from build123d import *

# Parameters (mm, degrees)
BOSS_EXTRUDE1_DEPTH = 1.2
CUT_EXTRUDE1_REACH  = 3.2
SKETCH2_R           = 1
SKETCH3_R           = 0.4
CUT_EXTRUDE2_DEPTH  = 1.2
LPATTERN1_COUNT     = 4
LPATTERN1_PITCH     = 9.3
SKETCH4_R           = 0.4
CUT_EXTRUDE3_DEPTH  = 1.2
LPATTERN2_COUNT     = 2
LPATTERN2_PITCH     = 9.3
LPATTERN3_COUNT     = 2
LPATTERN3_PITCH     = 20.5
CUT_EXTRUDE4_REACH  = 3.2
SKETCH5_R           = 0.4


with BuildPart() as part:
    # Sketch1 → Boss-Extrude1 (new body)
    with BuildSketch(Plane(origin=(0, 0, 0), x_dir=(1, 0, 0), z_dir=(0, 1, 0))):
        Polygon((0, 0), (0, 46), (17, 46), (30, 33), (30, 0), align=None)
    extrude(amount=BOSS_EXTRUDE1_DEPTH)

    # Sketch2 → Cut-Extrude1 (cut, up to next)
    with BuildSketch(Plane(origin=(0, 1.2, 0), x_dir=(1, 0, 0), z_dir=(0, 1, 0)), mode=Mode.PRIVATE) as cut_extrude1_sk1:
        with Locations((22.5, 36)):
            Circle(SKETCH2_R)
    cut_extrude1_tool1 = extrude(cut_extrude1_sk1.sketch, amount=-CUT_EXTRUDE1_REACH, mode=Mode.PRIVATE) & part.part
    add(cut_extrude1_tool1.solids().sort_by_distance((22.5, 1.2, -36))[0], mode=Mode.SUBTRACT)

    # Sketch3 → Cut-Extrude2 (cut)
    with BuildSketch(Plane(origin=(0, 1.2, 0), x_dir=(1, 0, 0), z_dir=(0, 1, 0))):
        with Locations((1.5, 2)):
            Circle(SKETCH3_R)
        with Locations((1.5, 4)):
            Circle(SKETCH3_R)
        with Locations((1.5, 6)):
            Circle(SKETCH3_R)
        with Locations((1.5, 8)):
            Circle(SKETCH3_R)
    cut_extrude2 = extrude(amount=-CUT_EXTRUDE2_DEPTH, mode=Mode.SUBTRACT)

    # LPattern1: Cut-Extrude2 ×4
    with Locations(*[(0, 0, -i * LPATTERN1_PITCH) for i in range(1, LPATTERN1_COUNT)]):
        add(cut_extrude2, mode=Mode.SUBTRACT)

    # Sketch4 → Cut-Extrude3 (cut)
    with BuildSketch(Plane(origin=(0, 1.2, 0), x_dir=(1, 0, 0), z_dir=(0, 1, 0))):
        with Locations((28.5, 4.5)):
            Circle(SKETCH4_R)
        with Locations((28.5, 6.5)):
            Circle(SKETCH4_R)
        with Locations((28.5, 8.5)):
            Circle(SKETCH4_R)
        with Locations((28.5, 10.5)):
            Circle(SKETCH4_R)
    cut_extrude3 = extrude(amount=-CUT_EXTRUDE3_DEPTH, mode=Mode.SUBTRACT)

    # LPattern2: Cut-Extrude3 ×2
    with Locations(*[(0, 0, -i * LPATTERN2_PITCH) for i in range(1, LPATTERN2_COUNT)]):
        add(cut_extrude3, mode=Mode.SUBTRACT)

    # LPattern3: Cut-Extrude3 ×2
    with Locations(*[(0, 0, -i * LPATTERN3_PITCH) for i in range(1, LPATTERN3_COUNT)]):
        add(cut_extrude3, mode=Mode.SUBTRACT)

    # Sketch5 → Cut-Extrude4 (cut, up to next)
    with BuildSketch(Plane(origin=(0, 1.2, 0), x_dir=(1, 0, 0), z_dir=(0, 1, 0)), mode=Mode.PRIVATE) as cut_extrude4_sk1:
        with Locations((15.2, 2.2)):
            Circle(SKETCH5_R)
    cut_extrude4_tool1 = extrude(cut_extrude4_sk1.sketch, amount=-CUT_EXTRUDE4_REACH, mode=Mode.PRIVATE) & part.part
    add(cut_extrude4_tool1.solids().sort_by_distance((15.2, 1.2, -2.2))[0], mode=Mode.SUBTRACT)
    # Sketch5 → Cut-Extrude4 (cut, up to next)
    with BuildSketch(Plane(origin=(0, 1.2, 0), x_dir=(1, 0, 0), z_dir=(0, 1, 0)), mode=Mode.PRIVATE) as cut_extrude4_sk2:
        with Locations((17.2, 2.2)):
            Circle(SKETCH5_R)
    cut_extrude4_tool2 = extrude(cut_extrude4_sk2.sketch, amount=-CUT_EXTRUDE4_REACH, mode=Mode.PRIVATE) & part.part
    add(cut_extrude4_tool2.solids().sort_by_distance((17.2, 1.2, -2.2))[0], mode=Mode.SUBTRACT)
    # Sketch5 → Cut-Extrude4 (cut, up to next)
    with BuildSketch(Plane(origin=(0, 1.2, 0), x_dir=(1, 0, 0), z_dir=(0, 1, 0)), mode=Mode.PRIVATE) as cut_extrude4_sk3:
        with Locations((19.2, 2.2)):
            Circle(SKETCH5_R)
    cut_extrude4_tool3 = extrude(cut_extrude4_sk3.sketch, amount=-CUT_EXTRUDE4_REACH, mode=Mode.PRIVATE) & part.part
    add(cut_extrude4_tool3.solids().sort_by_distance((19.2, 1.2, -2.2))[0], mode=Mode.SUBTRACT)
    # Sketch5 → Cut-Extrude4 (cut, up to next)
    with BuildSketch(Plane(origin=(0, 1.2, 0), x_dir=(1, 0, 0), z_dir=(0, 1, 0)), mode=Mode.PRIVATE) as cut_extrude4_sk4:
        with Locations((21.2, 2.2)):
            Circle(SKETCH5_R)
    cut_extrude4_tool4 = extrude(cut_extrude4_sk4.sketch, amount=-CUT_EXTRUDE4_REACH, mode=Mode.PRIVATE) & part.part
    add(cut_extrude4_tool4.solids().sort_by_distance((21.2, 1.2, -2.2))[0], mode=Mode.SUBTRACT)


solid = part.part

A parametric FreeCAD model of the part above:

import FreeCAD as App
import Part
import Sketcher
Q = App.Units.Quantity


def add_polygon(sketch, points):
    """Adds a closed chain of lines whose ends are joined by coincident constraints."""
    first, n = sketch.GeometryCount, len(points)
    for a, b in zip(points, points[1:] + points[:1]):
        sketch.addGeometry(Part.LineSegment(App.Vector(*a, 0), App.Vector(*b, 0)), False)
    for i in range(n):
        sketch.addConstraint(Sketcher.Constraint("Coincident", first + i, 2, first + (i + 1) % n, 1))

doc = App.newDocument("Part")
body = doc.addObject("PartDesign::Body", "Body")

# Sketch on XZ plane
sketch1 = doc.addObject("Sketcher::SketchObject", "Sketch")
body.addObject(sketch1)
sketch1.AttachmentSupport = (doc.XZ_Plane, [""])
sketch1.MapMode = "FlatFace"
add_polygon(sketch1, [(0, -46), (0, 0), (30, 0), (30, -33), (17, -46)])  # lines 0-4
sketch1.addConstraint([
    Sketcher.Constraint("Vertical", 0),
    Sketcher.Constraint("Horizontal", 1),
    Sketcher.Constraint("Vertical", 2),
    Sketcher.Constraint("Horizontal", 4),
    Sketcher.Constraint("Coincident", 0, 2, -1, 1),
    Sketcher.Constraint("DistanceX", 1, 1, 1, 2, Q("30 mm")),
    Sketcher.Constraint("DistanceX", 4, 2, 4, 1, Q("17 mm")),
    Sketcher.Constraint("DistanceY", 0, 1, 0, 2, Q("46 mm")),
    Sketcher.Constraint("DistanceY", 2, 2, 2, 1, Q("33 mm")),
])
pad1 = doc.addObject("PartDesign::Pad", "Pad")
body.addObject(pad1)
pad1.Profile = sketch1
pad1.Length = 1.2
pad1.Reversed = True

# Sketch on XZ plane
sketch2 = doc.addObject("Sketcher::SketchObject", "Sketch001")
body.addObject(sketch2)
sketch2.AttachmentSupport = (doc.XZ_Plane, [""])
sketch2.MapMode = "FlatFace"
sketch2.AttachmentOffset = App.Placement(App.Vector(0, 0, -1.2), App.Rotation())
sketch2.addGeometry(Part.Circle(App.Vector(22.5, -36, 0), App.Vector(0, 0, 1), 1), False)
sketch2.addConstraint([
    Sketcher.Constraint("Diameter", 0, Q("2 mm")),
    Sketcher.Constraint("DistanceY", 0, 3, -1, 1, Q("36 mm")),
    Sketcher.Constraint("DistanceX", -1, 1, 0, 3, Q("22.5 mm")),
])
pocket1 = doc.addObject("PartDesign::Pocket", "Pocket")
body.addObject(pocket1)
pocket1.Profile = sketch2
pocket1.Type = "UpToFirst"
pocket1.Reversed = True

# Sketch on XZ plane
sketch3 = doc.addObject("Sketcher::SketchObject", "Sketch002")
body.addObject(sketch3)
sketch3.AttachmentSupport = (doc.XZ_Plane, [""])
sketch3.MapMode = "FlatFace"
sketch3.AttachmentOffset = App.Placement(App.Vector(0, 0, -1.2), App.Rotation())
sketch3.addGeometry([
    Part.Circle(App.Vector(1.5, -2, 0), App.Vector(0, 0, 1), 0.4),
    Part.Circle(App.Vector(1.5, -4, 0), App.Vector(0, 0, 1), 0.4),
    Part.Circle(App.Vector(1.5, -6, 0), App.Vector(0, 0, 1), 0.4),
    Part.Circle(App.Vector(1.5, -8, 0), App.Vector(0, 0, 1), 0.4),
], False)
sketch3.addConstraint([
    Sketcher.Constraint("Equal", 0, 1),
    Sketcher.Constraint("Equal", 1, 2),
    Sketcher.Constraint("Equal", 2, 3),
    Sketcher.Constraint("Vertical", 0, 3, 1, 3),
    Sketcher.Constraint("Vertical", 1, 3, 2, 3),
    Sketcher.Constraint("Vertical", 2, 3, 3, 3),
    Sketcher.Constraint("Diameter", 0, Q("0.8 mm")),
    Sketcher.Constraint("DistanceY", 0, 3, -1, 1, Q("2 mm")),
    Sketcher.Constraint("DistanceY", 1, 3, -1, 1, Q("4 mm")),
    Sketcher.Constraint("DistanceY", 2, 3, -1, 1, Q("6 mm")),
    Sketcher.Constraint("DistanceY", 3, 3, -1, 1, Q("8 mm")),
    Sketcher.Constraint("DistanceX", -1, 1, 0, 3, Q("1.5 mm")),
])
pocket2 = doc.addObject("PartDesign::Pocket", "Pocket001")
body.addObject(pocket2)
pocket2.Profile = sketch3
pocket2.Length = 1.2
pocket2.Reversed = True
doc.recompute()

linearpattern = doc.addObject("PartDesign::LinearPattern", "LinearPattern")
body.addObject(linearpattern)
linearpattern.Originals = [pocket2]
linearpattern.Direction = (doc.Z_Axis, [""])
linearpattern.Mode = "offset"
linearpattern.Offset = 9.3
linearpattern.Occurrences = 4
linearpattern.Reversed = True
body.Tip = linearpattern

# Sketch on XZ plane
sketch4 = doc.addObject("Sketcher::SketchObject", "Sketch003")
body.addObject(sketch4)
sketch4.AttachmentSupport = (doc.XZ_Plane, [""])
sketch4.MapMode = "FlatFace"
sketch4.AttachmentOffset = App.Placement(App.Vector(0, 0, -1.2), App.Rotation())
sketch4.addGeometry([
    Part.Circle(App.Vector(28.5, -4.5, 0), App.Vector(0, 0, 1), 0.4),
    Part.Circle(App.Vector(28.5, -6.5, 0), App.Vector(0, 0, 1), 0.4),
    Part.Circle(App.Vector(28.5, -8.5, 0), App.Vector(0, 0, 1), 0.4),
    Part.Circle(App.Vector(28.5, -10.5, 0), App.Vector(0, 0, 1), 0.4),
], False)
sketch4.addConstraint([
    Sketcher.Constraint("Equal", 0, 1),
    Sketcher.Constraint("Equal", 1, 2),
    Sketcher.Constraint("Equal", 2, 3),
    Sketcher.Constraint("Vertical", 0, 3, 1, 3),
    Sketcher.Constraint("Vertical", 1, 3, 2, 3),
    Sketcher.Constraint("Vertical", 2, 3, 3, 3),
    Sketcher.Constraint("Diameter", 0, Q("0.8 mm")),
    Sketcher.Constraint("DistanceY", 1, 3, 0, 3, Q("2 mm")),
    Sketcher.Constraint("DistanceY", 2, 3, 1, 3, Q("2 mm")),
    Sketcher.Constraint("DistanceY", 3, 3, 2, 3, Q("2 mm")),
    Sketcher.Constraint("DistanceX", -1, 1, 0, 3, Q("28.5 mm")),
    Sketcher.Constraint("DistanceY", 0, 3, -1, 1, Q("4.5 mm")),
])
pocket3 = doc.addObject("PartDesign::Pocket", "Pocket002")
body.addObject(pocket3)
pocket3.Profile = sketch4
pocket3.Length = 1.2
pocket3.Reversed = True
doc.recompute()

linearpattern2 = doc.addObject("PartDesign::LinearPattern", "LinearPattern001")
body.addObject(linearpattern2)
linearpattern2.Originals = [pocket3]
linearpattern2.Direction = (doc.Z_Axis, [""])
linearpattern2.Mode = "offset"
linearpattern2.Offset = 9.3
linearpattern2.Occurrences = 2
linearpattern2.Reversed = True
body.Tip = linearpattern2
doc.recompute()

linearpattern3 = doc.addObject("PartDesign::LinearPattern", "LinearPattern002")
body.addObject(linearpattern3)
linearpattern3.Originals = [pocket3]
linearpattern3.Direction = (doc.Z_Axis, [""])
linearpattern3.Mode = "offset"
linearpattern3.Offset = 20.5
linearpattern3.Occurrences = 2
linearpattern3.Reversed = True
body.Tip = linearpattern3

# Sketch on XZ plane
sketch5 = doc.addObject("Sketcher::SketchObject", "Sketch004")
body.addObject(sketch5)
sketch5.AttachmentSupport = (doc.XZ_Plane, [""])
sketch5.MapMode = "FlatFace"
sketch5.AttachmentOffset = App.Placement(App.Vector(0, 0, -1.2), App.Rotation())
sketch5.addGeometry(Part.Circle(App.Vector(15.2, -2.2, 0), App.Vector(0, 0, 1), 0.4), False)
sketch5.addConstraint([
    Sketcher.Constraint("Diameter", 0, Q("0.8 mm")),
    Sketcher.Constraint("DistanceX", -1, 1, 0, 3, Q("15.2 mm")),
    Sketcher.Constraint("DistanceY", 0, 3, -1, 1, Q("2.2 mm")),
])
pocket4 = doc.addObject("PartDesign::Pocket", "Pocket003")
body.addObject(pocket4)
pocket4.Profile = sketch5
pocket4.Type = "UpToFirst"
pocket4.Reversed = True

# Sketch on XZ plane
sketch6 = doc.addObject("Sketcher::SketchObject", "Sketch005")
body.addObject(sketch6)
sketch6.AttachmentSupport = (doc.XZ_Plane, [""])
sketch6.MapMode = "FlatFace"
sketch6.AttachmentOffset = App.Placement(App.Vector(0, 0, -1.2), App.Rotation())
sketch6.addGeometry(Part.Circle(App.Vector(17.2, -2.2, 0), App.Vector(0, 0, 1), 0.4), False)
sketch6.addConstraint([
    Sketcher.Constraint("Diameter", 0, Q("0.8 mm")),
    Sketcher.Constraint("DistanceX", -1, 1, 0, 3, Q("17.2 mm")),
    Sketcher.Constraint("DistanceY", 0, 3, -1, 1, Q("2.2 mm")),
])
pocket5 = doc.addObject("PartDesign::Pocket", "Pocket004")
body.addObject(pocket5)
pocket5.Profile = sketch6
pocket5.Type = "UpToFirst"
pocket5.Reversed = True

# Sketch on XZ plane
sketch7 = doc.addObject("Sketcher::SketchObject", "Sketch006")
body.addObject(sketch7)
sketch7.AttachmentSupport = (doc.XZ_Plane, [""])
sketch7.MapMode = "FlatFace"
sketch7.AttachmentOffset = App.Placement(App.Vector(0, 0, -1.2), App.Rotation())
sketch7.addGeometry(Part.Circle(App.Vector(19.2, -2.2, 0), App.Vector(0, 0, 1), 0.4), False)
sketch7.addConstraint([
    Sketcher.Constraint("Diameter", 0, Q("0.8 mm")),
    Sketcher.Constraint("DistanceX", -1, 1, 0, 3, Q("19.2 mm")),
    Sketcher.Constraint("DistanceY", 0, 3, -1, 1, Q("2.2 mm")),
])
pocket6 = doc.addObject("PartDesign::Pocket", "Pocket005")
body.addObject(pocket6)
pocket6.Profile = sketch7
pocket6.Type = "UpToFirst"
pocket6.Reversed = True

# Sketch on XZ plane
sketch8 = doc.addObject("Sketcher::SketchObject", "Sketch007")
body.addObject(sketch8)
sketch8.AttachmentSupport = (doc.XZ_Plane, [""])
sketch8.MapMode = "FlatFace"
sketch8.AttachmentOffset = App.Placement(App.Vector(0, 0, -1.2), App.Rotation())
sketch8.addGeometry(Part.Circle(App.Vector(21.2, -2.2, 0), App.Vector(0, 0, 1), 0.4), False)
sketch8.addConstraint([
    Sketcher.Constraint("Diameter", 0, Q("0.8 mm")),
    Sketcher.Constraint("DistanceX", -1, 1, 0, 3, Q("21.2 mm")),
    Sketcher.Constraint("DistanceY", 0, 3, -1, 1, Q("2.2 mm")),
])
pocket7 = doc.addObject("PartDesign::Pocket", "Pocket006")
body.addObject(pocket7)
pocket7.Profile = sketch8
pocket7.Type = "UpToFirst"
pocket7.Reversed = True

doc.recompute()
